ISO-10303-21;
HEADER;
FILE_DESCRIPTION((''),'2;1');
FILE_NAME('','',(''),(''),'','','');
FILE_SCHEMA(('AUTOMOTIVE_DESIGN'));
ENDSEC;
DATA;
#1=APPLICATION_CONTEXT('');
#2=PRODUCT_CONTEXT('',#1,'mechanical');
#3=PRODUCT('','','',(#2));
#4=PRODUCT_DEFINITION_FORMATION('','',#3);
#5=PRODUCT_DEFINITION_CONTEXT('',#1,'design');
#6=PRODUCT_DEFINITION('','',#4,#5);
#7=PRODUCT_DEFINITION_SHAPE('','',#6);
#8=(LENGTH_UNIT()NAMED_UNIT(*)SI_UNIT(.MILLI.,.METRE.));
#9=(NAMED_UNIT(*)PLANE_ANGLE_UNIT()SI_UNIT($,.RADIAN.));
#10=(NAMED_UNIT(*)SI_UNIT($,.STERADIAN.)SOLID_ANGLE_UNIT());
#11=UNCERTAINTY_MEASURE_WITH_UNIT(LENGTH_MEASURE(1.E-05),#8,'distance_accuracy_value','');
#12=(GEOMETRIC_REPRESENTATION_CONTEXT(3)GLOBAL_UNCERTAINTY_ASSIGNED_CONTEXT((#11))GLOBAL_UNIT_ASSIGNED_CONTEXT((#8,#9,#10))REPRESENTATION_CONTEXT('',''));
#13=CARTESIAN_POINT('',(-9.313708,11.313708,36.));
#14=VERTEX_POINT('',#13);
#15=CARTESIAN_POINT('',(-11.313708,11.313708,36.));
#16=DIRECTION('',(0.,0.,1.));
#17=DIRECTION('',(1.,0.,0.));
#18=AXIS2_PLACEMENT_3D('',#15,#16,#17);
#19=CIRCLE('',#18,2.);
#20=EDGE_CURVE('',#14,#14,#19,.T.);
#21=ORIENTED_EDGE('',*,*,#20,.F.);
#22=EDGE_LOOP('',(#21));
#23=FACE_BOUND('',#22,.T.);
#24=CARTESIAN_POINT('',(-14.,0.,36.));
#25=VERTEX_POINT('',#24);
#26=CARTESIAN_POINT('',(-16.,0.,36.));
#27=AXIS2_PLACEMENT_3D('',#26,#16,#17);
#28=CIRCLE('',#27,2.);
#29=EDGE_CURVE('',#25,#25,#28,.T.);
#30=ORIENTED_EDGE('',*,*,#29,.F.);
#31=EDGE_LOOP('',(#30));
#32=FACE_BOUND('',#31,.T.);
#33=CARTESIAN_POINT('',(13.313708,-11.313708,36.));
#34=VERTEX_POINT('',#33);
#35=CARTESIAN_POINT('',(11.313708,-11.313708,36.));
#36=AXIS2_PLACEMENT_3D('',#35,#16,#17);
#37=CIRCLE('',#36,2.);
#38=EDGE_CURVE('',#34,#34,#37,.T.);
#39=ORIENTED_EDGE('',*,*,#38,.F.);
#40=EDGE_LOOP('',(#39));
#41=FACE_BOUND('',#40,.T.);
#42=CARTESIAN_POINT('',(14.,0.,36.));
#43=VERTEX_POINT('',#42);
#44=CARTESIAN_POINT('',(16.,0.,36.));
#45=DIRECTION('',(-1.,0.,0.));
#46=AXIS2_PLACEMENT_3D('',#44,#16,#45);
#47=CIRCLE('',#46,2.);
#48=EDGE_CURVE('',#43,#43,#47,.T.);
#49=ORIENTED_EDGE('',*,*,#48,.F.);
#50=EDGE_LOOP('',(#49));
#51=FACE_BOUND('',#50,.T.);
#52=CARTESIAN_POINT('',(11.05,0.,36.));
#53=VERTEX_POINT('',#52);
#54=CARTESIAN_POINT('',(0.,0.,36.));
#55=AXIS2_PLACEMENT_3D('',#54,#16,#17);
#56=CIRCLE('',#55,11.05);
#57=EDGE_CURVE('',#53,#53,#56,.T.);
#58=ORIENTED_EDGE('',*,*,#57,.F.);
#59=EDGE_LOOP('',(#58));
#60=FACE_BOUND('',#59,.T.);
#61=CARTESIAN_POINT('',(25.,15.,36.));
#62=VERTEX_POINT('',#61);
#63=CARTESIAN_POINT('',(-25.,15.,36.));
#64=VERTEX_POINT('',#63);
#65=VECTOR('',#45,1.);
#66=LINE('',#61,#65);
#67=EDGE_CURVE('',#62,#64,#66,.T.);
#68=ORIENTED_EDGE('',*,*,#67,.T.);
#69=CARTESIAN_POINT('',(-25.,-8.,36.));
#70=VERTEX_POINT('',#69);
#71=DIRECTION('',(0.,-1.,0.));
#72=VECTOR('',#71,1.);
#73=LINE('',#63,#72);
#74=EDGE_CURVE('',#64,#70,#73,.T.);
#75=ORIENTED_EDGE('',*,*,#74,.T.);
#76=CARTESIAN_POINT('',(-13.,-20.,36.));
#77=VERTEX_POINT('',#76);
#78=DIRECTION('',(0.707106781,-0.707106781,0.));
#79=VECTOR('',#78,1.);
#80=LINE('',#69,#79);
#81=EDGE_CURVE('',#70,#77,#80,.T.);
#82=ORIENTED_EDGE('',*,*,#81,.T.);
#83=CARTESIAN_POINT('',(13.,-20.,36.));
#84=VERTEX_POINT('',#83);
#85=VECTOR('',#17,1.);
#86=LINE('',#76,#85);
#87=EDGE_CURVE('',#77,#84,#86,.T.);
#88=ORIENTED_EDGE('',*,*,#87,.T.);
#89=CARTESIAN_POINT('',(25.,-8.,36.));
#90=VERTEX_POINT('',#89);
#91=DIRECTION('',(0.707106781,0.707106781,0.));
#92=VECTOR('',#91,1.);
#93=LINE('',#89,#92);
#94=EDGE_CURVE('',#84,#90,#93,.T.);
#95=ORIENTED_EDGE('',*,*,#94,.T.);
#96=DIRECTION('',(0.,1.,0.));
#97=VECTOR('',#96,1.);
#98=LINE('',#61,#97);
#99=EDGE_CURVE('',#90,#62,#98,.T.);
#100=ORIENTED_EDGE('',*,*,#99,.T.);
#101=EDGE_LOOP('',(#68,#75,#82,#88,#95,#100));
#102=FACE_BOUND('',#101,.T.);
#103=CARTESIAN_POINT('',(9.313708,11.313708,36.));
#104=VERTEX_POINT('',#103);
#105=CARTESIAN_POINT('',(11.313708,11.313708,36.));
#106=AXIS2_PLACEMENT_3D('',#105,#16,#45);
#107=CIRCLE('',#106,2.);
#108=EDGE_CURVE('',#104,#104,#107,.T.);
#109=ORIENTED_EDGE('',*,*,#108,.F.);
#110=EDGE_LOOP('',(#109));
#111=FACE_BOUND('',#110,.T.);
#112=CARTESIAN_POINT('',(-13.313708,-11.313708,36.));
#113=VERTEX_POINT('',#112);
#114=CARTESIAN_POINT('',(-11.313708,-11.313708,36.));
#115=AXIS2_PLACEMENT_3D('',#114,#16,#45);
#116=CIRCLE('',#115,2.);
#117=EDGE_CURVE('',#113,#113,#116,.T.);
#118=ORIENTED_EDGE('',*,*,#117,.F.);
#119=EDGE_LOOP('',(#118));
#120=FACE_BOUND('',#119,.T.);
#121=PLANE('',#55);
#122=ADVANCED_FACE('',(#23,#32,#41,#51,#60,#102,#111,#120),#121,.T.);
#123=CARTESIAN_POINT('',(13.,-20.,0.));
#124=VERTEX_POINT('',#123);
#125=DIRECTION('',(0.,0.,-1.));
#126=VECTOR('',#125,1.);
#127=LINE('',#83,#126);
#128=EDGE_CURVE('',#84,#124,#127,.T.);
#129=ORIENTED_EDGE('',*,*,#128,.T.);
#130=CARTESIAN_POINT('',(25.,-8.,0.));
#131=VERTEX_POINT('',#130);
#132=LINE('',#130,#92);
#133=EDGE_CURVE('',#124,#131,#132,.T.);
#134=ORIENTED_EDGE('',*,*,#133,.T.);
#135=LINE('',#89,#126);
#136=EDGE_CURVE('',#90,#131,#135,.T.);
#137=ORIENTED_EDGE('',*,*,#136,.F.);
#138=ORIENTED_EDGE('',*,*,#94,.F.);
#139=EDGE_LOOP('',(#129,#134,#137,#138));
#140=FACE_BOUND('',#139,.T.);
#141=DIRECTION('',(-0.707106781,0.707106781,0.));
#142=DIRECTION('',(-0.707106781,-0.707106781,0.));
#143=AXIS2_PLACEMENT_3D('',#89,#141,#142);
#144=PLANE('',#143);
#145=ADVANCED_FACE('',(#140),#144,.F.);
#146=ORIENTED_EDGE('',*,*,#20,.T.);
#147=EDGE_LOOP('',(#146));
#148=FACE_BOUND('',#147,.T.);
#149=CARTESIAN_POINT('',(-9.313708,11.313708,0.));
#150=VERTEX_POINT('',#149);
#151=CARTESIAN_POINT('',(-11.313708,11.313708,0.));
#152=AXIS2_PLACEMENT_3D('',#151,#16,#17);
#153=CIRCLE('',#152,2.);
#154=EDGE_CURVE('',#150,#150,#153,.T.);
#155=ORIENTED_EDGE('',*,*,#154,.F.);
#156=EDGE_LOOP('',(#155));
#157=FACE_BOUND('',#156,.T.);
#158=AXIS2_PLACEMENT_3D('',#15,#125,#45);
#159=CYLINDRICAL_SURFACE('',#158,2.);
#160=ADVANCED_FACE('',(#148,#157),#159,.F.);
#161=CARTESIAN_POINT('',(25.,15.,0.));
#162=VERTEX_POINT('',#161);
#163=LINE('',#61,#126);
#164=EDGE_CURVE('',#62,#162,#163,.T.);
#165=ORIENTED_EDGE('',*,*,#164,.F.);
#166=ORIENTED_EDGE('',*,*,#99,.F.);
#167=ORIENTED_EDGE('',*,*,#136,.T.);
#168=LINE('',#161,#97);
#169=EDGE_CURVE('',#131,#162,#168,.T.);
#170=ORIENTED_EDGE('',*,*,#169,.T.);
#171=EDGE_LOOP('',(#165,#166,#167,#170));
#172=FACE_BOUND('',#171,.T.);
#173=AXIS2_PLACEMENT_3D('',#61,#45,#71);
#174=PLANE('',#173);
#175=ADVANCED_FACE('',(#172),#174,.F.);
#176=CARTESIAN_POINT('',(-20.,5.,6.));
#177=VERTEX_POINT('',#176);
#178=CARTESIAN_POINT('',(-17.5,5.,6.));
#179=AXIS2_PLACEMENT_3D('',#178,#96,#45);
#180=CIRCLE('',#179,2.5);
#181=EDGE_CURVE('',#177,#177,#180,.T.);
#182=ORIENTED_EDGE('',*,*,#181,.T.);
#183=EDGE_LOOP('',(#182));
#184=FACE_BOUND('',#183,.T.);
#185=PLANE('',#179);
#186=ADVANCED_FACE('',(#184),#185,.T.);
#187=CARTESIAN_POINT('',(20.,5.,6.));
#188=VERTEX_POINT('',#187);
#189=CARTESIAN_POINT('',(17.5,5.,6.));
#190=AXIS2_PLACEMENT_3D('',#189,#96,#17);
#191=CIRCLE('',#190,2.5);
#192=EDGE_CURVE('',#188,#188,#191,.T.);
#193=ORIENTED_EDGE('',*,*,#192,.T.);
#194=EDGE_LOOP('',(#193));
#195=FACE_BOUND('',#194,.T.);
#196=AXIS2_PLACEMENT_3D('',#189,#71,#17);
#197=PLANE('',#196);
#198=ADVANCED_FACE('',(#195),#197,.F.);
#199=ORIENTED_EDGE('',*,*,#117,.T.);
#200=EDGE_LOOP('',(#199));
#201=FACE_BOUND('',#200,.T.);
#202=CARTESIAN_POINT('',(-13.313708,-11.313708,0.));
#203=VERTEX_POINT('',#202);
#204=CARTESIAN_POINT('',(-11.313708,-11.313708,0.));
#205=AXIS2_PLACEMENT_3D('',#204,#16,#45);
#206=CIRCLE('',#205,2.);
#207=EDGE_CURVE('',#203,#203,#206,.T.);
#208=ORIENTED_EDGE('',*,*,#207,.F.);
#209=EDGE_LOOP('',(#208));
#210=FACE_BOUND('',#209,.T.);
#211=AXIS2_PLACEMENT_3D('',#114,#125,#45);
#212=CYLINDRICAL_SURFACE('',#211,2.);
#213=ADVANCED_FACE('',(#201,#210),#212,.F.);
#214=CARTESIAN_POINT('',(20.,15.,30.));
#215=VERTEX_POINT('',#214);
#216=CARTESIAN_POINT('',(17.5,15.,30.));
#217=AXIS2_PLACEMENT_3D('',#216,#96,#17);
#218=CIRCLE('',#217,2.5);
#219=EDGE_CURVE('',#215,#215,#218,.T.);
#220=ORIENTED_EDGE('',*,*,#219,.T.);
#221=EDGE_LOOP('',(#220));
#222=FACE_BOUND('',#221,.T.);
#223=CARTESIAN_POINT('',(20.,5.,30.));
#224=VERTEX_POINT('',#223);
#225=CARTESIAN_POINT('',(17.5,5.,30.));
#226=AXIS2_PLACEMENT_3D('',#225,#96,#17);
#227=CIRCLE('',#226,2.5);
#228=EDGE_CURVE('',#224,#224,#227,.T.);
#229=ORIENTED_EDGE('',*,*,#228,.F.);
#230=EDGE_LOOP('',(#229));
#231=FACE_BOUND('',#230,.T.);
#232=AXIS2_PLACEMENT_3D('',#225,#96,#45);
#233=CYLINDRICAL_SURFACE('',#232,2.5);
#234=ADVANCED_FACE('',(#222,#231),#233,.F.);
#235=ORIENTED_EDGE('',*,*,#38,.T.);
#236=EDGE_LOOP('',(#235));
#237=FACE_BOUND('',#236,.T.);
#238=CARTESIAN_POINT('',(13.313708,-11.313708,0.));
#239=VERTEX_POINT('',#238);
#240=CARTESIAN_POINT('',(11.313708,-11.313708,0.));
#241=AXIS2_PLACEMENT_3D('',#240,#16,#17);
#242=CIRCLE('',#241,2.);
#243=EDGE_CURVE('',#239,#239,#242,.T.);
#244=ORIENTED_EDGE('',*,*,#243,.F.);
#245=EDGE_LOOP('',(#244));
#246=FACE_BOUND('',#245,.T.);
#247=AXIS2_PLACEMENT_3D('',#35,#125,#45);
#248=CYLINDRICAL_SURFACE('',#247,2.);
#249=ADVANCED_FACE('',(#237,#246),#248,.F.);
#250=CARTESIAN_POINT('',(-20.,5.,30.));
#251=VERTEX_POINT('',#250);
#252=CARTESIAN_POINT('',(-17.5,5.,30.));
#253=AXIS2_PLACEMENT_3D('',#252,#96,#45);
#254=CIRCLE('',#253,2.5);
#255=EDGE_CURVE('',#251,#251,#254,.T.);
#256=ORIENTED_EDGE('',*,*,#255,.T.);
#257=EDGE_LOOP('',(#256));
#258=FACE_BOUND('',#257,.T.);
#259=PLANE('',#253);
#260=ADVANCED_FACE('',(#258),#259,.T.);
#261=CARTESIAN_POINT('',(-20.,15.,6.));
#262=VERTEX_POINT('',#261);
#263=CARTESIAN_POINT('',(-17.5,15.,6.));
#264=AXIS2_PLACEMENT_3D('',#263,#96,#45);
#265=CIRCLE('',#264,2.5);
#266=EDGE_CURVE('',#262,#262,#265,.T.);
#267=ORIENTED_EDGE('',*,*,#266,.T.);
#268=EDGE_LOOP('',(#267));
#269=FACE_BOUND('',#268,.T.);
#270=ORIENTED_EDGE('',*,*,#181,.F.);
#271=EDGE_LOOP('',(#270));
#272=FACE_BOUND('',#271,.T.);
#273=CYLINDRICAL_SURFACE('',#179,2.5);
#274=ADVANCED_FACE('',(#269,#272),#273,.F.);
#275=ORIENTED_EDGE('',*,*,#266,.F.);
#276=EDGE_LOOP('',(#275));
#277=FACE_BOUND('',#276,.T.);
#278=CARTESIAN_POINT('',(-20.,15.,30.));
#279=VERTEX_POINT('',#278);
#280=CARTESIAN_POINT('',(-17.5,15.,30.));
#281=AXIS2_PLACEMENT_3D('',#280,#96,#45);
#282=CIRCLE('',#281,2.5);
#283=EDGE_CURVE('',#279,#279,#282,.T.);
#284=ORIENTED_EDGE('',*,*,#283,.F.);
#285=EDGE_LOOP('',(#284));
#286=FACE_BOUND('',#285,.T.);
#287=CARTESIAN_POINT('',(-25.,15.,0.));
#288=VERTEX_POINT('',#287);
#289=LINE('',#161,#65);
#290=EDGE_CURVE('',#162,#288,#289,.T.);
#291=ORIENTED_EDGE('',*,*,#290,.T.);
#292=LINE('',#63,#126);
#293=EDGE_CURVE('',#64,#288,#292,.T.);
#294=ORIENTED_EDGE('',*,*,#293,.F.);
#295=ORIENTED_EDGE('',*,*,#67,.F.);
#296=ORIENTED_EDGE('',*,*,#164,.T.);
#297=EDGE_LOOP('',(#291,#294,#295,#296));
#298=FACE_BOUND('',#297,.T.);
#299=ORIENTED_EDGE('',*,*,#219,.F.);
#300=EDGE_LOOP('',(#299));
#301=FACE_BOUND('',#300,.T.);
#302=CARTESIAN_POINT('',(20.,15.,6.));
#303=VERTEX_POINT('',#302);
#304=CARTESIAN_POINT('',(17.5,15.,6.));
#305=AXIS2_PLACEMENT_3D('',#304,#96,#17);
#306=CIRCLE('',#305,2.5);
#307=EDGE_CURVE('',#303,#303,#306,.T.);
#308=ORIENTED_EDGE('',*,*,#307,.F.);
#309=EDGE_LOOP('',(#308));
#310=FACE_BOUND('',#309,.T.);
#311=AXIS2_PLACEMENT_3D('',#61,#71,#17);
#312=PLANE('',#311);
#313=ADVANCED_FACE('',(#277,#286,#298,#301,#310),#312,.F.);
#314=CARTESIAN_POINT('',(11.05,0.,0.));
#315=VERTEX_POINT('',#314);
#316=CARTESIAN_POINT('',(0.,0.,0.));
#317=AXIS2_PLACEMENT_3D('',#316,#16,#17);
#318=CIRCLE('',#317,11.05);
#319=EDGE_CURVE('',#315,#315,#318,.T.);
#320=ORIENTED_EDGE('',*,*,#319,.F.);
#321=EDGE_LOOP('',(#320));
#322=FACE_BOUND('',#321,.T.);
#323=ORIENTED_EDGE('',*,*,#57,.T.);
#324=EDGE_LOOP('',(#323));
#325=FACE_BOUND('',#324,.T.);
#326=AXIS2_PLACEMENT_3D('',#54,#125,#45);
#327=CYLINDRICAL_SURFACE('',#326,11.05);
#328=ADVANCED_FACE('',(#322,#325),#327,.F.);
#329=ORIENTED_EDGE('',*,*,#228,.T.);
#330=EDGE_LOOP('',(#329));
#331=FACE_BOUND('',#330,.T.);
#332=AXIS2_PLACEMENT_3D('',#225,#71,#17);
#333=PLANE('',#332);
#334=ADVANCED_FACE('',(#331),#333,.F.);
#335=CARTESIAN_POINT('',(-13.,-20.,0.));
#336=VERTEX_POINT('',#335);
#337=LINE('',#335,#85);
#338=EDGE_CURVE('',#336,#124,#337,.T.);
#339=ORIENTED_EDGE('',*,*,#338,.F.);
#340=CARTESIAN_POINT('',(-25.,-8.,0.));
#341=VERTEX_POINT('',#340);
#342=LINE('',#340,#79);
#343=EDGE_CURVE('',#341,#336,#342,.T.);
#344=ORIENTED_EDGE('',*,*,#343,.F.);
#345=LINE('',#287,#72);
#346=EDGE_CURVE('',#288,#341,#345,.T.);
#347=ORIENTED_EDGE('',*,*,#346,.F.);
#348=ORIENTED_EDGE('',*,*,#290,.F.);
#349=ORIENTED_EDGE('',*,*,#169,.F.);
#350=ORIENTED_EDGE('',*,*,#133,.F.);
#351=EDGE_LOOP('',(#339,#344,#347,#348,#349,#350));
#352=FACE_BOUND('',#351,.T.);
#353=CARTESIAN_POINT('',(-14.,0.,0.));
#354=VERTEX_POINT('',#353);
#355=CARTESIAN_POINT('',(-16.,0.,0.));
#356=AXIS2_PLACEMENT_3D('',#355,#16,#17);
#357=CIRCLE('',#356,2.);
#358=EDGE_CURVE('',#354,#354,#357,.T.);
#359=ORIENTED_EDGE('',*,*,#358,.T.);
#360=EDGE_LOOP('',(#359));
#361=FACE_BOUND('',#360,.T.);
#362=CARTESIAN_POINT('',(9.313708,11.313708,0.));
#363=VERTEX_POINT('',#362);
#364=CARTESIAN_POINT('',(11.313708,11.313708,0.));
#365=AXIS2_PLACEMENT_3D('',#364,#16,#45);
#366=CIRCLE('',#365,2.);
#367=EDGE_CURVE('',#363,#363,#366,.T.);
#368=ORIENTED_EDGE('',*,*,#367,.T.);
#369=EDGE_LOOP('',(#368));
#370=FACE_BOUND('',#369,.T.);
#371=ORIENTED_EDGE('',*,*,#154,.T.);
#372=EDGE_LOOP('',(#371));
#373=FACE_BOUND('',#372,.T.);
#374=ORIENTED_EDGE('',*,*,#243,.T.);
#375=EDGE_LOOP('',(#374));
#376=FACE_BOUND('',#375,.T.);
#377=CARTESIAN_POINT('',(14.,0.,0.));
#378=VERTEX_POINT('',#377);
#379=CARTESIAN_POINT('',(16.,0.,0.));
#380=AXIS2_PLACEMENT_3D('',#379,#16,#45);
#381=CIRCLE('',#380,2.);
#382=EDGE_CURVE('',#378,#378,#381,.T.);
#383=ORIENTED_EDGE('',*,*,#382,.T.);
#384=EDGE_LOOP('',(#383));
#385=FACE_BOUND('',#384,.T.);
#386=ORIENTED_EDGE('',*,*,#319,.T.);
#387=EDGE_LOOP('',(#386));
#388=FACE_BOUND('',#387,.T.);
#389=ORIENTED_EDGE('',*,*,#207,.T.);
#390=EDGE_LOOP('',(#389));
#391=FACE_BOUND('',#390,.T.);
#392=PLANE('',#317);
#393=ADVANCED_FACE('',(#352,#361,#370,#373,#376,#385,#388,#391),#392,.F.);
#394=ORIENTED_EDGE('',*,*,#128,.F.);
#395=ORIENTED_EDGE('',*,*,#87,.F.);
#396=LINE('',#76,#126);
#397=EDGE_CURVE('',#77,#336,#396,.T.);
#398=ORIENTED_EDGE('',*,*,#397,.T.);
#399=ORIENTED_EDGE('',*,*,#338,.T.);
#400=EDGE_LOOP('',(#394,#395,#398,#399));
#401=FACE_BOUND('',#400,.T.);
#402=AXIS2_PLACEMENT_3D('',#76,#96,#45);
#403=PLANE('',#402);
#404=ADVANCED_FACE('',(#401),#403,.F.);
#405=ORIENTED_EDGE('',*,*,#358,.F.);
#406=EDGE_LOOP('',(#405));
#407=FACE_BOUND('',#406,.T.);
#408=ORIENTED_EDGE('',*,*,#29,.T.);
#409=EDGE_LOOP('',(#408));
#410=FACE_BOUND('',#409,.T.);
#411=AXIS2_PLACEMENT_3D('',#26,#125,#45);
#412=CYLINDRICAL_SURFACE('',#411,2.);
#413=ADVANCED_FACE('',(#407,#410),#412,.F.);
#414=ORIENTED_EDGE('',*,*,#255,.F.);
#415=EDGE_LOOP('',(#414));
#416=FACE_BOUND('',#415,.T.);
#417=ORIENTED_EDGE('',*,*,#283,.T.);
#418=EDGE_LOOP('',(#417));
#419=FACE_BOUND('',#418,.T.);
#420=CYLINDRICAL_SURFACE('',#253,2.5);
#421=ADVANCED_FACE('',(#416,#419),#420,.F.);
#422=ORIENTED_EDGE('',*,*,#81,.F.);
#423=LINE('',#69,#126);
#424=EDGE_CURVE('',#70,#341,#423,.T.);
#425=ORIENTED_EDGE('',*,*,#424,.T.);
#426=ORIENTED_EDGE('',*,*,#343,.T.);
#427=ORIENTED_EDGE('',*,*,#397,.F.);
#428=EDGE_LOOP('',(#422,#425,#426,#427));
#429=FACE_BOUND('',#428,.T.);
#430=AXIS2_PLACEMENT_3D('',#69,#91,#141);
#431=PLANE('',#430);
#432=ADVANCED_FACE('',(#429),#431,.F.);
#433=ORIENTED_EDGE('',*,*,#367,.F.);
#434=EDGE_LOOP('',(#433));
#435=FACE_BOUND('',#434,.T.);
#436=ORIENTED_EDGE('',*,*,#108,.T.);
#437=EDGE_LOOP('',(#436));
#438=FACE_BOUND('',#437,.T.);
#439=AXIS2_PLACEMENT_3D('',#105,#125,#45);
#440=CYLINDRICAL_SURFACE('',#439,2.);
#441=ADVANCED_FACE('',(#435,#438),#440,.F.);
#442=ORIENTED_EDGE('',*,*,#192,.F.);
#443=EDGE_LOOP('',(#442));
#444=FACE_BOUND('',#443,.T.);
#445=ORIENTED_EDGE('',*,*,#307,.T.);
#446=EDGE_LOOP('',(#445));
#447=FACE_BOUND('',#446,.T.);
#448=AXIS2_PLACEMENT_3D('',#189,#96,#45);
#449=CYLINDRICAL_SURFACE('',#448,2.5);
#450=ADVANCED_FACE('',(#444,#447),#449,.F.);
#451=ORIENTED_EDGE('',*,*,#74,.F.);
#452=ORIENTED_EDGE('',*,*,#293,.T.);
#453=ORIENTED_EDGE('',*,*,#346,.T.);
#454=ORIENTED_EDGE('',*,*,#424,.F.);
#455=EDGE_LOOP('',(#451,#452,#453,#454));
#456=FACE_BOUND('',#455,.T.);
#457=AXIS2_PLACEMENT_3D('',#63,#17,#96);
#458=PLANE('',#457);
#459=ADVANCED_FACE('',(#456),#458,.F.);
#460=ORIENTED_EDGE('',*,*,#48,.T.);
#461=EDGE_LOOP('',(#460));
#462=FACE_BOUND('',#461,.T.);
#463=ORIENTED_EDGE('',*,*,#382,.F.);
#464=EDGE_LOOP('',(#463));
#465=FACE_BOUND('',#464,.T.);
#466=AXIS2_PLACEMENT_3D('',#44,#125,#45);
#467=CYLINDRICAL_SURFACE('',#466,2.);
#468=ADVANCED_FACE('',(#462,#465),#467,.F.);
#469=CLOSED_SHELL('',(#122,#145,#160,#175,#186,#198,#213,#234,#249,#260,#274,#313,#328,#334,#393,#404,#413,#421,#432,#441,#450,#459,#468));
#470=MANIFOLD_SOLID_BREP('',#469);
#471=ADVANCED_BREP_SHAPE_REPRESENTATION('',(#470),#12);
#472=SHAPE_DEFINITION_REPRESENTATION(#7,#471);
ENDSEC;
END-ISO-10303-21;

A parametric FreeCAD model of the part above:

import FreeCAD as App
import Part
import Sketcher

V = App.Vector


def add_polygon(sketch, points):
    """Adds a closed chain of lines whose ends are joined by coincident constraints."""
    first, n = sketch.GeometryCount, len(points)
    for a, b in zip(points, points[1:] + points[:1]):
        sketch.addGeometry(Part.LineSegment(App.Vector(*a, 0), App.Vector(*b, 0)), False)
    for i in range(n):
        sketch.addConstraint(Sketcher.Constraint("Coincident", first + i, 2, first + (i + 1) % n, 1))

doc = App.newDocument("Part")
body = doc.addObject("PartDesign::Body", "Body")

sketch1 = body.newObject("Sketcher::SketchObject", "Sketch")
sketch1.AttachmentSupport = (doc.getObject("XY_Plane"), [""])
sketch1.MapMode = "FlatFace"
add_polygon(sketch1, [(25, 15), (-25, 15), (-25, -8), (-13, -20), (13, -20), (25, -8)])
sketch1.addGeometry(Part.Circle(V(-11.313708, -11.313708, 0), V(0, 0, 1), 2), False)
sketch1.addGeometry(Part.Circle(V(11.313708, -11.313708, 0), V(0, 0, 1), 2), False)
sketch1.addGeometry(Part.Circle(V(-16, 0, 0), V(0, 0, 1), 2), False)
sketch1.addGeometry(Part.Circle(V(-11.313708, 11.313708, 0), V(0, 0, 1), 2), False)
sketch1.addGeometry(Part.Circle(V(0, 0, 0), V(0, 0, 1), 11.05), False)
sketch1.addGeometry(Part.Circle(V(16, 0, 0), V(0, 0, 1), 2), False)
sketch1.addGeometry(Part.Circle(V(11.313708, 11.313708, 0), V(0, 0, 1), 2), False)
sketch1.addConstraint(Sketcher.Constraint("Horizontal", 0))
sketch1.addConstraint(Sketcher.Constraint("Vertical", 1))
sketch1.addConstraint(Sketcher.Constraint("Horizontal", 3))
sketch1.addConstraint(Sketcher.Constraint("Vertical", 5))
sketch1.addConstraint(Sketcher.Constraint("Coincident", 10, 3, -1, 1))
sketch1.addConstraint(Sketcher.Constraint("Equal", 6, 7))
sketch1.addConstraint(Sketcher.Constraint("Equal", 7, 8))
sketch1.addConstraint(Sketcher.Constraint("Equal", 8, 9))
sketch1.addConstraint(Sketcher.Constraint("Equal", 9, 11))
sketch1.addConstraint(Sketcher.Constraint("Equal", 11, 12))
sketch1.addConstraint(Sketcher.Constraint("Symmetric", 7, 3, 9, 3, -1, 1))
sketch1.addConstraint(Sketcher.Constraint("Symmetric", 8, 3, 11, 3, -1, 1))
sketch1.addConstraint(Sketcher.Constraint("Symmetric", 6, 3, 12, 3, -1, 1))
sketch1.addConstraint(Sketcher.Constraint("Symmetric", 6, 3, 7, 3, -2))
sketch1.addConstraint(Sketcher.Constraint("Symmetric", 1, 2, 4, 2, -2))
sketch1.addConstraint(Sketcher.Constraint("PointOnObject", 8, 3, -1))
sketch1.addConstraint(Sketcher.Constraint("Perpendicular", 2, 4))
sketch1.addConstraint(Sketcher.Constraint("Equal", 2, 4))
sketch1.addConstraint(Sketcher.Constraint("Diameter", 6, 4.0))
sketch1.addConstraint(Sketcher.Constraint("Diameter", 10, 22.1))
sketch1.addConstraint(Sketcher.Constraint("DistanceX", 0, 2, 0, 1, 50.0))
sketch1.addConstraint(Sketcher.Constraint("DistanceX", 3, 1, 3, 2, 26.0))
sketch1.addConstraint(Sketcher.Constraint("DistanceY", 1, 2, 1, 1, 23.0))
sketch1.addConstraint(Sketcher.Constraint("DistanceX", 8, 3, -1, 1, 16.0))
sketch1.addConstraint(Sketcher.Constraint("DistanceY", -1, 1, 0, 2, 15.0))
sketch1.addConstraint(Sketcher.Constraint("DistanceX", 6, 3, -1, 1, 11.313708))
sketch1.addConstraint(Sketcher.Constraint("DistanceY", 6, 3, -1, 1, 11.313708))
pad1 = body.newObject("PartDesign::Pad", "Pad")
pad1.Profile = sketch1
pad1.Length = 36

sketch2 = body.newObject("Sketcher::SketchObject", "Sketch001")
sketch2.AttachmentSupport = (doc.getObject("XZ_Plane"), [""])
sketch2.MapMode = "FlatFace"
sketch2.AttachmentOffset = App.Placement(V(0, 0, -15), App.Rotation())
sketch2.addGeometry(Part.Circle(V(-17.5, 6, 0), V(0, 0, 1), 2.5), False)
sketch2.addGeometry(Part.Circle(V(-17.5, 30, 0), V(0, 0, 1), 2.5), False)
sketch2.addGeometry(Part.Circle(V(17.5, 30, 0), V(0, 0, 1), 2.5), False)
sketch2.addGeometry(Part.Circle(V(17.5, 6, 0), V(0, 0, 1), 2.5), False)
sketch2.addConstraint(Sketcher.Constraint("Equal", 0, 1))
sketch2.addConstraint(Sketcher.Constraint("Equal", 1, 2))
sketch2.addConstraint(Sketcher.Constraint("Equal", 2, 3))
sketch2.addConstraint(Sketcher.Constraint("Symmetric", 1, 3, 2, 3, -2))
sketch2.addConstraint(Sketcher.Constraint("Symmetric", 0, 3, 3, 3, -2))
sketch2.addConstraint(Sketcher.Constraint("Vertical", 0, 3, 1, 3))
sketch2.addConstraint(Sketcher.Constraint("Diameter", 0, 5.0))
sketch2.addConstraint(Sketcher.Constraint("DistanceY", -1, 1, 0, 3, 6.0))
sketch2.addConstraint(Sketcher.Constraint("DistanceY", -1, 1, 1, 3, 30.0))
sketch2.addConstraint(Sketcher.Constraint("DistanceX", 1, 3, 2, 3, 35.0))
pocket1 = body.newObject("PartDesign::Pocket", "Pocket")
pocket1.Profile = sketch2
pocket1.Length = 10
pocket1.Reversed = True

doc.recompute()
